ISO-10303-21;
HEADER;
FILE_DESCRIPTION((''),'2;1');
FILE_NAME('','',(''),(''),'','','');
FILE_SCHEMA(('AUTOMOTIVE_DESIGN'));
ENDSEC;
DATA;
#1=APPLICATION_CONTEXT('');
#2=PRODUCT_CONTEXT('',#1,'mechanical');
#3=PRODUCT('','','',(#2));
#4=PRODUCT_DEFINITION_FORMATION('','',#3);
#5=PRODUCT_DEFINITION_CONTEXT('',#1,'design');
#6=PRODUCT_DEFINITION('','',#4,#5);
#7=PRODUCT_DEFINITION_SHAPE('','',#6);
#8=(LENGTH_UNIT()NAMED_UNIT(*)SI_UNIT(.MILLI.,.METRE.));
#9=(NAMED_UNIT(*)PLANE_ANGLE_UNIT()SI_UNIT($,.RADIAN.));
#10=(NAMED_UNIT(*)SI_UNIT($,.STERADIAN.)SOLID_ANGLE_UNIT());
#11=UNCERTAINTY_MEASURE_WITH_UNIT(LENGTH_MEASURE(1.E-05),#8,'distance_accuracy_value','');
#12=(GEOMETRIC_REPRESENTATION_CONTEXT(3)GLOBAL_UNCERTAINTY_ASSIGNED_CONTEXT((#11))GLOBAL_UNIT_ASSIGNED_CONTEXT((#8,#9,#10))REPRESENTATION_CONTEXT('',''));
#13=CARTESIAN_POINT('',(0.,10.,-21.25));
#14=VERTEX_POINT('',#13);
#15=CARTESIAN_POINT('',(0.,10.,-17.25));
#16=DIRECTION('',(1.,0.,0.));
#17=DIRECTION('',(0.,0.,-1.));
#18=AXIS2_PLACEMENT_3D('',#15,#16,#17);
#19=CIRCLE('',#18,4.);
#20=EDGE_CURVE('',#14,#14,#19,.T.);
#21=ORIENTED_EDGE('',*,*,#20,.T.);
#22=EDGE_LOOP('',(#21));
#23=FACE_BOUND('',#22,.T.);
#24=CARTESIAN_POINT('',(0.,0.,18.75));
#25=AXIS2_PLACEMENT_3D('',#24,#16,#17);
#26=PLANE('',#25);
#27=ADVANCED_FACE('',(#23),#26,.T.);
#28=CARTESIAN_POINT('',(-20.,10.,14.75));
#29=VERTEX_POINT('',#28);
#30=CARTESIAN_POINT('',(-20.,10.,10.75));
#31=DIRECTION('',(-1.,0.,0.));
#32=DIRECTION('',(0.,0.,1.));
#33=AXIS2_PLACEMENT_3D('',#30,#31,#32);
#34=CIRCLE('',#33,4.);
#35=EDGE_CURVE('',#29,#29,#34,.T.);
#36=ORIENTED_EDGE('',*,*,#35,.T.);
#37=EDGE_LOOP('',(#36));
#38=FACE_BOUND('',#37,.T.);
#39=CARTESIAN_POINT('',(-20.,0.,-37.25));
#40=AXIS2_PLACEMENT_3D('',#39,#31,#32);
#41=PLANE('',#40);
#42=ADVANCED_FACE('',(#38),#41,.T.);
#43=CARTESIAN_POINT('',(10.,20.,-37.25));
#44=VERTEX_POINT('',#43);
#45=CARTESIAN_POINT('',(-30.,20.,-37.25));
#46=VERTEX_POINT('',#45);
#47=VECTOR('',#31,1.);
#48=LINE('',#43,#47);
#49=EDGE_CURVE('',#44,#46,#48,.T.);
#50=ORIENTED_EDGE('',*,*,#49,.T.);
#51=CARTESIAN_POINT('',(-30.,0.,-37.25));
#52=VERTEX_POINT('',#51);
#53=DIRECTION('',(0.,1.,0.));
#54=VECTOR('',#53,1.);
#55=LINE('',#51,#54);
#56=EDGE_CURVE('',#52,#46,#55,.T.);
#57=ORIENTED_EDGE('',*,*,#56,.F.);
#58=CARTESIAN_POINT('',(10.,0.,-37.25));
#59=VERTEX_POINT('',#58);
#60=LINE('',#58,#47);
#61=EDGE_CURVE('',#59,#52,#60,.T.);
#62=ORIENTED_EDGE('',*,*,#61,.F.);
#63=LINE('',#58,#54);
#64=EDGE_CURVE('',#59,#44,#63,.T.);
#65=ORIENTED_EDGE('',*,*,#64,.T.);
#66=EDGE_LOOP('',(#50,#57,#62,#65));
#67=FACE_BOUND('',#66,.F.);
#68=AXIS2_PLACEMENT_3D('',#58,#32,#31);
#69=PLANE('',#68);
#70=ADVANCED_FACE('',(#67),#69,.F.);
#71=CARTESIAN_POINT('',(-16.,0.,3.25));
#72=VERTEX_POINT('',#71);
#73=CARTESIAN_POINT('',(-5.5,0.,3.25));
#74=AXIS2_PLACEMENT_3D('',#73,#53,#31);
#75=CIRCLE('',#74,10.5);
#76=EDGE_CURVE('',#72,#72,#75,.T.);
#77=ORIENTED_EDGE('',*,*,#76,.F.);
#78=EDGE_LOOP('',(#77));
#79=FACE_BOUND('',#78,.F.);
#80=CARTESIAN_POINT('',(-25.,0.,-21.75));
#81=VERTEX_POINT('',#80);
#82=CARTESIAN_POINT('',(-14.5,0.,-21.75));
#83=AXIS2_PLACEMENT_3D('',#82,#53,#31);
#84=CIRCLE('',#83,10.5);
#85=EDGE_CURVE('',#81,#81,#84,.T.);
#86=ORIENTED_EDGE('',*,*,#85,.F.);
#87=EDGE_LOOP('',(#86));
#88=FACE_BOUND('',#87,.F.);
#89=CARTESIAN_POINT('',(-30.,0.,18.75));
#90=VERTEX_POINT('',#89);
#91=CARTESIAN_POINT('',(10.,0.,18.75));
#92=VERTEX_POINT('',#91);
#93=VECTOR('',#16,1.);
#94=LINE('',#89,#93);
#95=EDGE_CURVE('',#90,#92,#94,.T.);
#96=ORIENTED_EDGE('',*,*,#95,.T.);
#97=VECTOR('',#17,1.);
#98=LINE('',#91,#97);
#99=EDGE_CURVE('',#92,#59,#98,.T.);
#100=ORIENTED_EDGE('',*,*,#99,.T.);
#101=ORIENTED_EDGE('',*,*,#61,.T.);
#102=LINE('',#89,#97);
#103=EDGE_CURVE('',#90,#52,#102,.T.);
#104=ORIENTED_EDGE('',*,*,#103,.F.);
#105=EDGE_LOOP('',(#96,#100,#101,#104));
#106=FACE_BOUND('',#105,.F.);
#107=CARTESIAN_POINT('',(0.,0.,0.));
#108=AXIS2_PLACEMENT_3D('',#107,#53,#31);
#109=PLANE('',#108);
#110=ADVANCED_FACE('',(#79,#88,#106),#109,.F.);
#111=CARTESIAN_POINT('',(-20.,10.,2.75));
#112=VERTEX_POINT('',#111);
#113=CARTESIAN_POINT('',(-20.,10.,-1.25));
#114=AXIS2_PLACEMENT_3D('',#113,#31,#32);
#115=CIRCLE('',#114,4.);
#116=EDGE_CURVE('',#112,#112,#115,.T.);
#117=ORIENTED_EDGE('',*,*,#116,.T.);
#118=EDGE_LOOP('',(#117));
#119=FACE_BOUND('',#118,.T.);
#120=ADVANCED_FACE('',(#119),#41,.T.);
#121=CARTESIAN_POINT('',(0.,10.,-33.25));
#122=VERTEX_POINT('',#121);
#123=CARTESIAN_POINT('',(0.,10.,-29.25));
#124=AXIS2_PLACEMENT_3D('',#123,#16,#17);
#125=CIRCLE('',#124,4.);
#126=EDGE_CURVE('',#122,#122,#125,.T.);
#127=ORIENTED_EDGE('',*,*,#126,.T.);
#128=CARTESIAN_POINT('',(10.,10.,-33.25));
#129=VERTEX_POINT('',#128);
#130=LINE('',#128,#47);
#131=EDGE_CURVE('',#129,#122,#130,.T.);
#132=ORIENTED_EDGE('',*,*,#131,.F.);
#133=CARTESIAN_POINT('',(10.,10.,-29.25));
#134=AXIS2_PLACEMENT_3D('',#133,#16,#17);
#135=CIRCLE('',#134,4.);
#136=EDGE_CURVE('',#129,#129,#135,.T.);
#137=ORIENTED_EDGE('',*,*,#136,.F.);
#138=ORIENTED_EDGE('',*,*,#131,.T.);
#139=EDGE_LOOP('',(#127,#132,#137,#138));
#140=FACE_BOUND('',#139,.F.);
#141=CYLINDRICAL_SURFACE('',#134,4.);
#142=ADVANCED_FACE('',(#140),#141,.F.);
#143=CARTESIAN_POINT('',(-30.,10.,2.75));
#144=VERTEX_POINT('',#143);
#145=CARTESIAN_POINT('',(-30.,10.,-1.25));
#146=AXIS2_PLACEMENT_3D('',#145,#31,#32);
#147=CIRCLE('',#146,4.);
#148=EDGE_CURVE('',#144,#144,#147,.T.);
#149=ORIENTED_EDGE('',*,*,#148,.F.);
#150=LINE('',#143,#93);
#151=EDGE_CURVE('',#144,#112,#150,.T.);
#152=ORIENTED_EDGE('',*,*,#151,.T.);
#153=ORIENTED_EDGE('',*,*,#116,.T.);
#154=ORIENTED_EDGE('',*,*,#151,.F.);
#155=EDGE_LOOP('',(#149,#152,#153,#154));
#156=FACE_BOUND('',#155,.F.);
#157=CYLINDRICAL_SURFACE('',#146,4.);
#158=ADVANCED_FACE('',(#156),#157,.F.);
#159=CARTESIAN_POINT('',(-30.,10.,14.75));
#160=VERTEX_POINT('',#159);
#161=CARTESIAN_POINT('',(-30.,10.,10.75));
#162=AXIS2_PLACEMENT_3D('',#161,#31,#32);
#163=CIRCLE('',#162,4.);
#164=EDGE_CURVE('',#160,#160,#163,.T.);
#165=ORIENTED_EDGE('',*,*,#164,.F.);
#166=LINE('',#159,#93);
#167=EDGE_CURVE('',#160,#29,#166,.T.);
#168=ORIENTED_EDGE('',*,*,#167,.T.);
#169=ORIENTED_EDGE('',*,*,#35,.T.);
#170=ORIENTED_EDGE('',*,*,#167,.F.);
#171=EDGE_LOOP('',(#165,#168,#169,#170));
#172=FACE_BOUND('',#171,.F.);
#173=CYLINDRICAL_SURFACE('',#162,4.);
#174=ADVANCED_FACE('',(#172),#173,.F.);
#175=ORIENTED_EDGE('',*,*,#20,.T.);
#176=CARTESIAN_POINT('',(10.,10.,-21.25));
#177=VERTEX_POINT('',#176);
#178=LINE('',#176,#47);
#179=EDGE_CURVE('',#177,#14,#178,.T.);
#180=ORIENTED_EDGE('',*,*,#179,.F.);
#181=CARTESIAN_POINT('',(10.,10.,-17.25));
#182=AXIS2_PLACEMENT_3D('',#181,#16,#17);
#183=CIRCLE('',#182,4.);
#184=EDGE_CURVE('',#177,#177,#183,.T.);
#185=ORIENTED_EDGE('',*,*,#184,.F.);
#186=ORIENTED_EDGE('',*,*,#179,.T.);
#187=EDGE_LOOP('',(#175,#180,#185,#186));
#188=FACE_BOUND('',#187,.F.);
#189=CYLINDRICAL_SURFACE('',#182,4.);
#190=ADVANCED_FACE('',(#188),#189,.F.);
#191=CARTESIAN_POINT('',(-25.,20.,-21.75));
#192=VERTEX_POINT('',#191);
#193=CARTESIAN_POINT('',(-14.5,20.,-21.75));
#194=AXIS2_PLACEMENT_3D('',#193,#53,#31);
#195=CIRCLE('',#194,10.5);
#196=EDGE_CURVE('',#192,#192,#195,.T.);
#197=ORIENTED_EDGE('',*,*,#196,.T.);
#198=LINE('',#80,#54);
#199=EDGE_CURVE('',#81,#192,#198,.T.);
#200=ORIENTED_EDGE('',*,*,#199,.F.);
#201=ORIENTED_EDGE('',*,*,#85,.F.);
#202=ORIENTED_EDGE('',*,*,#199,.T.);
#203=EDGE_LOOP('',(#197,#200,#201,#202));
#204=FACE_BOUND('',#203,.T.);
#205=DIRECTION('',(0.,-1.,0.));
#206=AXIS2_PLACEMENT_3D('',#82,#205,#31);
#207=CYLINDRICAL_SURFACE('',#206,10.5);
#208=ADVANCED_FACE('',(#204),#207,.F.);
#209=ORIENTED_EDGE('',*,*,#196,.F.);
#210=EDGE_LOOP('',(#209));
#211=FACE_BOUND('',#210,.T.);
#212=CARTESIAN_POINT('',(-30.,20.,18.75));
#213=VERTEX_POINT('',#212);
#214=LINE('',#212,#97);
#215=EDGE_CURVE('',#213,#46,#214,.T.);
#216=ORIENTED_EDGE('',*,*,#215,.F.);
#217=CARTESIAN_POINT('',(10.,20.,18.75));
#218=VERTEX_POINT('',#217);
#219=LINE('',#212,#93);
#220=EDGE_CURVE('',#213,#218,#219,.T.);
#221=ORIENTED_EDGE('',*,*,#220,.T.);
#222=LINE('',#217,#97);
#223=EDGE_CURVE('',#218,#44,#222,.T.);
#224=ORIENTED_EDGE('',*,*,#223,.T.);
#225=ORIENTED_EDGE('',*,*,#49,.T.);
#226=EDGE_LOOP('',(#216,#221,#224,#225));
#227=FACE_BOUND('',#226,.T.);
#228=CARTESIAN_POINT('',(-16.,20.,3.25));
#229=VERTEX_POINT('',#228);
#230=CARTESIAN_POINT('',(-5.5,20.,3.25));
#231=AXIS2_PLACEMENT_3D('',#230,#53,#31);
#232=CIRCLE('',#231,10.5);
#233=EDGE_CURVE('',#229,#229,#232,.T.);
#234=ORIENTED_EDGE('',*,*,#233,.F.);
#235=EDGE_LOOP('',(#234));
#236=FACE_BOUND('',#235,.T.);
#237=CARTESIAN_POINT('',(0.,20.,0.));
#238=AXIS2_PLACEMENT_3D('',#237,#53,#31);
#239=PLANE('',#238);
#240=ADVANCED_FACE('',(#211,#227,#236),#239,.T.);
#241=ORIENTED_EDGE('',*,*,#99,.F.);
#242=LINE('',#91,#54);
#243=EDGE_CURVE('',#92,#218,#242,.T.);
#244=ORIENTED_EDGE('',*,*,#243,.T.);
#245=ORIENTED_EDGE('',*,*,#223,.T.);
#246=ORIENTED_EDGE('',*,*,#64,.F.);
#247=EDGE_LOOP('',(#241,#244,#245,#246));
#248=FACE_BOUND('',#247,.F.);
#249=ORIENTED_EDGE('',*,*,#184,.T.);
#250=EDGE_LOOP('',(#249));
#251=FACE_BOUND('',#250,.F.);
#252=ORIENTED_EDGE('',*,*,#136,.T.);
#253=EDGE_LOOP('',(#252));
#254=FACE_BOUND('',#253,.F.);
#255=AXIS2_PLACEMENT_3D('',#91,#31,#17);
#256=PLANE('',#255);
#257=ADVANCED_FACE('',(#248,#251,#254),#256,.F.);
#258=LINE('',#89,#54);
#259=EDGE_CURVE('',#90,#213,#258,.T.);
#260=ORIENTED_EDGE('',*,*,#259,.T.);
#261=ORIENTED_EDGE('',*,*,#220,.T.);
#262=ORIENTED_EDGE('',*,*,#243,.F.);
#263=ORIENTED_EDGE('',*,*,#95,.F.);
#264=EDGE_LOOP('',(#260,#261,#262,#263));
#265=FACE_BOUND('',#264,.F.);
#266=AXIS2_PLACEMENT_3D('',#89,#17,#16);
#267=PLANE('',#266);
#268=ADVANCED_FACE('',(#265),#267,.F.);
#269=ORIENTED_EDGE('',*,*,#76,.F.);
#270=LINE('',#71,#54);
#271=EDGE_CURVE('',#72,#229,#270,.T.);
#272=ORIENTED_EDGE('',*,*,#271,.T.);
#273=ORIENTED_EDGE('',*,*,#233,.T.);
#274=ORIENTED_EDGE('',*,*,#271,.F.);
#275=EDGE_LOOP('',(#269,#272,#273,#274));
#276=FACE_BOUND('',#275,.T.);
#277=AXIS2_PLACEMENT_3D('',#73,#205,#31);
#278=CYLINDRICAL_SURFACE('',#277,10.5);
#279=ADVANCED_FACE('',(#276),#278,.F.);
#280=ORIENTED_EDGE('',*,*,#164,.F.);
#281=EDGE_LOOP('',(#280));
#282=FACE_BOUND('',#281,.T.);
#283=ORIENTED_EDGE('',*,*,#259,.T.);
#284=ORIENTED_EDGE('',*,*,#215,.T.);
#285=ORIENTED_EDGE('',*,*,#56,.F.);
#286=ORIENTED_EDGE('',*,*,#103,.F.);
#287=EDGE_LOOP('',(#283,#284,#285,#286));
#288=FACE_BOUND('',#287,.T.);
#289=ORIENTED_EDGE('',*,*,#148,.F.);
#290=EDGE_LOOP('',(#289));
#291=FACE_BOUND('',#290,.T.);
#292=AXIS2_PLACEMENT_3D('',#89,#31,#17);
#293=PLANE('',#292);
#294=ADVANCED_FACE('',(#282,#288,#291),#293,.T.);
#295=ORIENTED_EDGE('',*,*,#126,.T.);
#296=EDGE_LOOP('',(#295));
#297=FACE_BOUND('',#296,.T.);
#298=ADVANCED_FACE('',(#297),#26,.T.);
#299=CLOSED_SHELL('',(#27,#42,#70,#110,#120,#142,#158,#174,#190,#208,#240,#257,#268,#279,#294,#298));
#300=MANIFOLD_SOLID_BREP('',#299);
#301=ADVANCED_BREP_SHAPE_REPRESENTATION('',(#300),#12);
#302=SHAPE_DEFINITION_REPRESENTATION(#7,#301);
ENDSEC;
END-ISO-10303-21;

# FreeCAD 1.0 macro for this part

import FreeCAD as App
import Part
import Sketcher
Q = App.Units.Quantity


def add_polygon(sketch, points):
    """Adds a closed chain of lines whose ends are joined by coincident constraints."""
    first, n = sketch.GeometryCount, len(points)
    for a, b in zip(points, points[1:] + points[:1]):
        sketch.addGeometry(Part.LineSegment(App.Vector(*a, 0), App.Vector(*b, 0)), False)
    for i in range(n):
        sketch.addConstraint(Sketcher.Constraint("Coincident", first + i, 2, first + (i + 1) % n, 1))

doc = App.newDocument("Part")
body = doc.addObject("PartDesign::Body", "Body")

sketch1 = body.newObject("Sketcher::SketchObject", "Sketch")
sketch1.AttachmentSupport = (doc.getObject("XZ_Plane"), [""])
sketch1.MapMode = "FlatFace"
add_polygon(sketch1, [(-30, -37), (-30, 19), (10, 19), (10, -37)])
sketch1.addGeometry(Part.Circle(App.Vector(-14, -22, 0), App.Vector(0, 0, 1), 10), False)
sketch1.addGeometry(Part.Circle(App.Vector(-6, 3, 0), App.Vector(0, 0, 1), 10), False)
sketch1.addConstraint([
    Sketcher.Constraint("Vertical", 0),
    Sketcher.Constraint("Horizontal", 1),
    Sketcher.Constraint("Vertical", 2),
    Sketcher.Constraint("Horizontal", 3),
    Sketcher.Constraint("Equal", 4, 5),
    Sketcher.Constraint("Diameter", 4, Q("21 mm")),
    Sketcher.Constraint("DistanceX", 1, 1, 1, 2, Q("40 mm")),
    Sketcher.Constraint("DistanceY", 0, 1, 0, 2, Q("56 mm")),
    Sketcher.Constraint("DistanceX", 4, 3, 5, 3, Q("9 mm")),
    Sketcher.Constraint("DistanceY", 4, 3, 5, 3, Q("25 mm")),
    Sketcher.Constraint("DistanceY", 5, 3, 0, 2, Q("15.5 mm")),
    Sketcher.Constraint("DistanceX", 0, 2, 4, 3, Q("15.5 mm")),
    Sketcher.Constraint("DistanceX", 0, 2, -1, 1, Q("30 mm")),
    Sketcher.Constraint("DistanceY", 4, 3, -1, 1, Q("21.75 mm")),
])
pad1 = body.newObject("PartDesign::Pad", "Pad")
pad1.Profile = sketch1
pad1.Length = 20
pad1.Reversed = True

sketch2 = body.newObject("Sketcher::SketchObject", "Sketch001")
sketch2.AttachmentSupport = (doc.getObject("YZ_Plane"), [""])
sketch2.MapMode = "FlatFace"
sketch2.AttachmentOffset = App.Placement(App.Vector(0, 0, 10), App.Rotation())
sketch2.addGeometry([
    Part.Circle(App.Vector(10, -29.2, 0), App.Vector(0, 0, 1), 4),
    Part.Circle(App.Vector(10, -17.2, 0), App.Vector(0, 0, 1), 4),
], False)
sketch2.addConstraint([
    Sketcher.Constraint("Equal", 0, 1),
    Sketcher.Constraint("Vertical", 0, 3, 1, 3),
    Sketcher.Constraint("Diameter", 0, Q("8 mm")),
    Sketcher.Constraint("DistanceX", -1, 1, 0, 3, Q("10 mm")),
    Sketcher.Constraint("DistanceY", 0, 3, 1, 3, Q("12 mm")),
    Sketcher.Constraint("DistanceY", 0, 3, -1, 1, Q("29.25 mm")),
])
pocket1 = body.newObject("PartDesign::Pocket", "Pocket")
pocket1.Profile = sketch2
pocket1.Length = 10

sketch3 = body.newObject("Sketcher::SketchObject", "Sketch002")
sketch3.AttachmentSupport = (doc.getObject("YZ_Plane"), [""])
sketch3.MapMode = "FlatFace"
sketch3.AttachmentOffset = App.Placement(App.Vector(0, 0, -30), App.Rotation())
sketch3.addGeometry([
    Part.Circle(App.Vector(10, 10.8, 0), App.Vector(0, 0, 1), 4),
    Part.Circle(App.Vector(10, -1.2, 0), App.Vector(0, 0, 1), 4),
], False)
sketch3.addConstraint([
    Sketcher.Constraint("Equal", 0, 1),
    Sketcher.Constraint("Vertical", 0, 3, 1, 3),
    Sketcher.Constraint("Diameter", 0, Q("8 mm")),
    Sketcher.Constraint("DistanceX", -1, 1, 0, 3, Q("10 mm")),
    Sketcher.Constraint("DistanceY", 1, 3, 0, 3, Q("12 mm")),
    Sketcher.Constraint("DistanceY", -1, 1, 0, 3, Q("10.75 mm")),
])
pocket2 = body.newObject("PartDesign::Pocket", "Pocket001")
pocket2.Profile = sketch3
pocket2.Length = 10
pocket2.Reversed = True

doc.recompute()
